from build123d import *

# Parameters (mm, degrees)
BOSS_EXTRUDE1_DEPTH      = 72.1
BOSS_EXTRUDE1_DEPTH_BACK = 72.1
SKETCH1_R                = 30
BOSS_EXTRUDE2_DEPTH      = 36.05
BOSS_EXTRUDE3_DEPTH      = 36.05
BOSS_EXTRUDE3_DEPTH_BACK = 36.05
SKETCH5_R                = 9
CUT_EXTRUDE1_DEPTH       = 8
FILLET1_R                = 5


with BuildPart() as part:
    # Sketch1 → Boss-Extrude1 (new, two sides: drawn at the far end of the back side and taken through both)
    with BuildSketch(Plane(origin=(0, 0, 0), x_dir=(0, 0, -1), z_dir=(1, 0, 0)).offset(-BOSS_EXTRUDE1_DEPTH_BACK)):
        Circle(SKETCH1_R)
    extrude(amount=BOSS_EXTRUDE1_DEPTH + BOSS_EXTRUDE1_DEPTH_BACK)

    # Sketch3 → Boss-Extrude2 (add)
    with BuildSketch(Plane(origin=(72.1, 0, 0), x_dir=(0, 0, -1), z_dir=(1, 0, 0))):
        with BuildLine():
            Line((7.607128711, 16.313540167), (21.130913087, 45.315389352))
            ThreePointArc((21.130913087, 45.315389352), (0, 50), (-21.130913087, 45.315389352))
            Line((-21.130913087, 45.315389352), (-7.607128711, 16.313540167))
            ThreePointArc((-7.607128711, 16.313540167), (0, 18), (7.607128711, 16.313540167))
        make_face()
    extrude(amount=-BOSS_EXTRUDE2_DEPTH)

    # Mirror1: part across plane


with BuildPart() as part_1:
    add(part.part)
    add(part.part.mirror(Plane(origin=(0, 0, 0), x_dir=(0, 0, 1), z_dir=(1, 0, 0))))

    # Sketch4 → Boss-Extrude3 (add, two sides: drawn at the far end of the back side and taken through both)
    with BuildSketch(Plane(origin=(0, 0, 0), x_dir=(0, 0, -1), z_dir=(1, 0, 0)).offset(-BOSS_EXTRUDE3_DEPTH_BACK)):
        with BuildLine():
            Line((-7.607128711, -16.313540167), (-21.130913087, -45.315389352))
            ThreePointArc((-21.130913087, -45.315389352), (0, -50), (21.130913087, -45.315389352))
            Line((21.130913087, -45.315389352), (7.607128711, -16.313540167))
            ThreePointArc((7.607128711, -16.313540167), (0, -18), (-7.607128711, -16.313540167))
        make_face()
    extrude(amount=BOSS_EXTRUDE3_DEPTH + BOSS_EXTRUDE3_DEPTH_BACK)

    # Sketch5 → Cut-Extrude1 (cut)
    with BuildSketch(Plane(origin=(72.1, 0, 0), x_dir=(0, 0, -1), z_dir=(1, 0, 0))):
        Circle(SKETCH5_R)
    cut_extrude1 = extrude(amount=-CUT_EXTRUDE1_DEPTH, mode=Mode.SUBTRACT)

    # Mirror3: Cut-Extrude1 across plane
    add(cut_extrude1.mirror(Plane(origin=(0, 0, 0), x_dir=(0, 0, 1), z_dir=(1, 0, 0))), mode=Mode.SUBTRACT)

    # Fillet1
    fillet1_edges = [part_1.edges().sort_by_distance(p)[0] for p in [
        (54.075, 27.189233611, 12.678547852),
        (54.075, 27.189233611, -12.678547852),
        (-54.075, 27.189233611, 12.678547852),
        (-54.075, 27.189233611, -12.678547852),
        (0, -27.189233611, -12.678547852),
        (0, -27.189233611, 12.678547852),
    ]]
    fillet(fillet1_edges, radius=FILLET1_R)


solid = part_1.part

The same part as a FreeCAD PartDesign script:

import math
import FreeCAD as App
import Part
import Sketcher

V = App.Vector
Q = App.Units.Quantity


def edges_at(feature, points):
    """Names of the edges that pass closest to the given points."""
    edges = feature.Shape.Edges
    near = lambda p: min(range(len(edges)), key=lambda i: edges[i].distToShape(Part.Vertex(*p))[0])
    return sorted({f"Edge{near(p) + 1}" for p in points})

doc = App.newDocument("Part")
body = doc.addObject("PartDesign::Body", "Body")

# Sketch on YZ plane
sketch1 = body.newObject("Sketcher::SketchObject", "Sketch")
sketch1.AttachmentSupport = (doc.getObject("YZ_Plane"), [""])
sketch1.MapMode = "FlatFace"
sketch1.addGeometry(Part.Circle(V(0, 0, 0), V(0, 0, 1), 30), False)
sketch1.addConstraint(Sketcher.Constraint("Coincident", 0, 3, -1, 1))
sketch1.addConstraint(Sketcher.Constraint("Diameter", 0, Q("60 mm")))
pad1 = body.newObject("PartDesign::Pad", "Pad")
pad1.Profile = sketch1
pad1.Type = "TwoLengths"
pad1.Length = 72.1
pad1.Length2 = 72.1

# Sketch on YZ plane
sketch2 = body.newObject("Sketcher::SketchObject", "Sketch001")
sketch2.AttachmentSupport = (doc.getObject("YZ_Plane"), [""])
sketch2.MapMode = "FlatFace"
sketch2.AttachmentOffset = App.Placement(V(0, 0, 72.1), App.Rotation())
sketch2.addGeometry(Part.LineSegment(V(16.31354, -7.607129, 0), V(45.315389, -21.130913, 0)), False)
sketch2.addGeometry(Part.ArcOfCircle(Part.Circle(V(0, 0, 0), V(0, 0, 1), 50), math.radians(-25), math.radians(25)), False)
sketch2.addGeometry(Part.LineSegment(V(45.315389, 21.130913, 0), V(16.31354, 7.607129, 0)), False)
sketch2.addGeometry(Part.ArcOfCircle(Part.Circle(V(0, 0, 0), V(0, 0, 1), 18), math.radians(-25), math.radians(25)), False)
sketch2.addConstraint(Sketcher.Constraint("Coincident", 0, 2, 1, 1))
sketch2.addConstraint(Sketcher.Constraint("Coincident", 1, 2, 2, 1))
sketch2.addConstraint(Sketcher.Constraint("Coincident", 2, 2, 3, 2))
sketch2.addConstraint(Sketcher.Constraint("Coincident", 3, 1, 0, 1))
sketch2.addConstraint(Sketcher.Constraint("Coincident", 1, 3, -1, 1))
sketch2.addConstraint(Sketcher.Constraint("Coincident", 3, 3, -1, 1))
sketch2.addConstraint(Sketcher.Constraint("Vertical", 0, 2, 1, 2))
sketch2.addConstraint(Sketcher.Constraint("Vertical", 2, 2, 3, 1))
sketch2.addConstraint(Sketcher.Constraint("Radius", 1, Q("50 mm")))
sketch2.addConstraint(Sketcher.Constraint("Radius", 3, Q("18 mm")))
sketch2.addConstraint(Sketcher.Constraint("Angle", 0, Q("-25 deg")))
sketch2.addConstraint(Sketcher.Constraint("DistanceX", -1, 1, 0, 2, Q("45.315389 mm")))
pad2 = body.newObject("PartDesign::Pad", "Pad001")
pad2.Profile = sketch2
pad2.Length = 36.05
pad2.Reversed = True
body2 = doc.addObject("PartDesign::Body", "Body001")
doc.recompute()

body2.BaseFeature = body
doc.recompute()

mirroring = doc.addObject("Part::Mirroring", "Mirroring")
mirroring.Source = body
mirroring.Base = V(0, 0, 0)
mirroring.Normal = V(1, 0, 0)
body3 = doc.addObject("PartDesign::Body", "Body002")
body3.BaseFeature = mirroring
boolean = body2.newObject("PartDesign::Boolean", "Boolean")
boolean.Type = "Fuse"
boolean.addObjects([body3])
doc.recompute()

# Sketch on YZ plane
sketch3 = body2.newObject("Sketcher::SketchObject", "Sketch002")
sketch3.AttachmentSupport = (doc.getObject("YZ_Plane001"), [""])
sketch3.MapMode = "FlatFace"
sketch3.addGeometry(Part.LineSegment(V(-16.31354, 7.607129, 0), V(-45.315389, 21.130913, 0)), False)
sketch3.addGeometry(Part.ArcOfCircle(Part.Circle(V(0, 0, 0), V(0, 0, 1), 50), math.radians(155), math.radians(205)), False)
sketch3.addGeometry(Part.LineSegment(V(-45.315389, -21.130913, 0), V(-16.31354, -7.607129, 0)), False)
sketch3.addGeometry(Part.ArcOfCircle(Part.Circle(V(0, 0, 0), V(0, 0, 1), 18), math.radians(155), math.radians(205)), False)
sketch3.addConstraint(Sketcher.Constraint("Coincident", 0, 2, 1, 1))
sketch3.addConstraint(Sketcher.Constraint("Coincident", 1, 2, 2, 1))
sketch3.addConstraint(Sketcher.Constraint("Coincident", 2, 2, 3, 2))
sketch3.addConstraint(Sketcher.Constraint("Coincident", 3, 1, 0, 1))
sketch3.addConstraint(Sketcher.Constraint("Coincident", 1, 3, -1, 1))
sketch3.addConstraint(Sketcher.Constraint("Coincident", 3, 3, -1, 1))
sketch3.addConstraint(Sketcher.Constraint("Vertical", 0, 2, 1, 2))
sketch3.addConstraint(Sketcher.Constraint("Vertical", 2, 2, 3, 1))
sketch3.addConstraint(Sketcher.Constraint("Radius", 1, Q("50 mm")))
sketch3.addConstraint(Sketcher.Constraint("Radius", 3, Q("18 mm")))
sketch3.addConstraint(Sketcher.Constraint("Angle", 0, Q("155 deg")))
sketch3.addConstraint(Sketcher.Constraint("DistanceX", 0, 2, -1, 1, Q("45.315389 mm")))
pad3 = body2.newObject("PartDesign::Pad", "Pad002")
pad3.Profile = sketch3
pad3.Type = "TwoLengths"
pad3.Length = 36.05
pad3.Length2 = 36.05

# Sketch on YZ plane
sketch4 = body2.newObject("Sketcher::SketchObject", "Sketch003")
sketch4.AttachmentSupport = (doc.getObject("YZ_Plane001"), [""])
sketch4.MapMode = "FlatFace"
sketch4.AttachmentOffset = App.Placement(V(0, 0, 72.1), App.Rotation())
sketch4.addGeometry(Part.Circle(V(0, 0, 0), V(0, 0, 1), 9), False)
sketch4.addConstraint(Sketcher.Constraint("Coincident", 0, 3, -1, 1))
sketch4.addConstraint(Sketcher.Constraint("Diameter", 0, Q("18 mm")))
pocket1 = body2.newObject("PartDesign::Pocket", "Pocket")
pocket1.Profile = sketch4
pocket1.Length = 8
doc.recompute()

mirrored = body2.newObject("PartDesign::Mirrored", "Mirrored")
mirrored.Originals = [pocket1]
mirrored.MirrorPlane = (doc.getObject("YZ_Plane001"), [""])
body2.Tip = mirrored
doc.recompute()

fillet = body2.newObject("PartDesign::Fillet", "Fillet")
fillet.Base = (mirrored, edges_at(mirrored, [
    (54.075, 27.189, 12.679),
    (54.075, 27.189, -12.679),
    (-54.075, 27.189, 12.679),
    (-54.075, 27.189, -12.679),
    (0, -27.189, -12.679),
    (0, -27.189, 12.679),
]))
fillet.Radius = 5
mirroring.Visibility = False

doc.recompute()
